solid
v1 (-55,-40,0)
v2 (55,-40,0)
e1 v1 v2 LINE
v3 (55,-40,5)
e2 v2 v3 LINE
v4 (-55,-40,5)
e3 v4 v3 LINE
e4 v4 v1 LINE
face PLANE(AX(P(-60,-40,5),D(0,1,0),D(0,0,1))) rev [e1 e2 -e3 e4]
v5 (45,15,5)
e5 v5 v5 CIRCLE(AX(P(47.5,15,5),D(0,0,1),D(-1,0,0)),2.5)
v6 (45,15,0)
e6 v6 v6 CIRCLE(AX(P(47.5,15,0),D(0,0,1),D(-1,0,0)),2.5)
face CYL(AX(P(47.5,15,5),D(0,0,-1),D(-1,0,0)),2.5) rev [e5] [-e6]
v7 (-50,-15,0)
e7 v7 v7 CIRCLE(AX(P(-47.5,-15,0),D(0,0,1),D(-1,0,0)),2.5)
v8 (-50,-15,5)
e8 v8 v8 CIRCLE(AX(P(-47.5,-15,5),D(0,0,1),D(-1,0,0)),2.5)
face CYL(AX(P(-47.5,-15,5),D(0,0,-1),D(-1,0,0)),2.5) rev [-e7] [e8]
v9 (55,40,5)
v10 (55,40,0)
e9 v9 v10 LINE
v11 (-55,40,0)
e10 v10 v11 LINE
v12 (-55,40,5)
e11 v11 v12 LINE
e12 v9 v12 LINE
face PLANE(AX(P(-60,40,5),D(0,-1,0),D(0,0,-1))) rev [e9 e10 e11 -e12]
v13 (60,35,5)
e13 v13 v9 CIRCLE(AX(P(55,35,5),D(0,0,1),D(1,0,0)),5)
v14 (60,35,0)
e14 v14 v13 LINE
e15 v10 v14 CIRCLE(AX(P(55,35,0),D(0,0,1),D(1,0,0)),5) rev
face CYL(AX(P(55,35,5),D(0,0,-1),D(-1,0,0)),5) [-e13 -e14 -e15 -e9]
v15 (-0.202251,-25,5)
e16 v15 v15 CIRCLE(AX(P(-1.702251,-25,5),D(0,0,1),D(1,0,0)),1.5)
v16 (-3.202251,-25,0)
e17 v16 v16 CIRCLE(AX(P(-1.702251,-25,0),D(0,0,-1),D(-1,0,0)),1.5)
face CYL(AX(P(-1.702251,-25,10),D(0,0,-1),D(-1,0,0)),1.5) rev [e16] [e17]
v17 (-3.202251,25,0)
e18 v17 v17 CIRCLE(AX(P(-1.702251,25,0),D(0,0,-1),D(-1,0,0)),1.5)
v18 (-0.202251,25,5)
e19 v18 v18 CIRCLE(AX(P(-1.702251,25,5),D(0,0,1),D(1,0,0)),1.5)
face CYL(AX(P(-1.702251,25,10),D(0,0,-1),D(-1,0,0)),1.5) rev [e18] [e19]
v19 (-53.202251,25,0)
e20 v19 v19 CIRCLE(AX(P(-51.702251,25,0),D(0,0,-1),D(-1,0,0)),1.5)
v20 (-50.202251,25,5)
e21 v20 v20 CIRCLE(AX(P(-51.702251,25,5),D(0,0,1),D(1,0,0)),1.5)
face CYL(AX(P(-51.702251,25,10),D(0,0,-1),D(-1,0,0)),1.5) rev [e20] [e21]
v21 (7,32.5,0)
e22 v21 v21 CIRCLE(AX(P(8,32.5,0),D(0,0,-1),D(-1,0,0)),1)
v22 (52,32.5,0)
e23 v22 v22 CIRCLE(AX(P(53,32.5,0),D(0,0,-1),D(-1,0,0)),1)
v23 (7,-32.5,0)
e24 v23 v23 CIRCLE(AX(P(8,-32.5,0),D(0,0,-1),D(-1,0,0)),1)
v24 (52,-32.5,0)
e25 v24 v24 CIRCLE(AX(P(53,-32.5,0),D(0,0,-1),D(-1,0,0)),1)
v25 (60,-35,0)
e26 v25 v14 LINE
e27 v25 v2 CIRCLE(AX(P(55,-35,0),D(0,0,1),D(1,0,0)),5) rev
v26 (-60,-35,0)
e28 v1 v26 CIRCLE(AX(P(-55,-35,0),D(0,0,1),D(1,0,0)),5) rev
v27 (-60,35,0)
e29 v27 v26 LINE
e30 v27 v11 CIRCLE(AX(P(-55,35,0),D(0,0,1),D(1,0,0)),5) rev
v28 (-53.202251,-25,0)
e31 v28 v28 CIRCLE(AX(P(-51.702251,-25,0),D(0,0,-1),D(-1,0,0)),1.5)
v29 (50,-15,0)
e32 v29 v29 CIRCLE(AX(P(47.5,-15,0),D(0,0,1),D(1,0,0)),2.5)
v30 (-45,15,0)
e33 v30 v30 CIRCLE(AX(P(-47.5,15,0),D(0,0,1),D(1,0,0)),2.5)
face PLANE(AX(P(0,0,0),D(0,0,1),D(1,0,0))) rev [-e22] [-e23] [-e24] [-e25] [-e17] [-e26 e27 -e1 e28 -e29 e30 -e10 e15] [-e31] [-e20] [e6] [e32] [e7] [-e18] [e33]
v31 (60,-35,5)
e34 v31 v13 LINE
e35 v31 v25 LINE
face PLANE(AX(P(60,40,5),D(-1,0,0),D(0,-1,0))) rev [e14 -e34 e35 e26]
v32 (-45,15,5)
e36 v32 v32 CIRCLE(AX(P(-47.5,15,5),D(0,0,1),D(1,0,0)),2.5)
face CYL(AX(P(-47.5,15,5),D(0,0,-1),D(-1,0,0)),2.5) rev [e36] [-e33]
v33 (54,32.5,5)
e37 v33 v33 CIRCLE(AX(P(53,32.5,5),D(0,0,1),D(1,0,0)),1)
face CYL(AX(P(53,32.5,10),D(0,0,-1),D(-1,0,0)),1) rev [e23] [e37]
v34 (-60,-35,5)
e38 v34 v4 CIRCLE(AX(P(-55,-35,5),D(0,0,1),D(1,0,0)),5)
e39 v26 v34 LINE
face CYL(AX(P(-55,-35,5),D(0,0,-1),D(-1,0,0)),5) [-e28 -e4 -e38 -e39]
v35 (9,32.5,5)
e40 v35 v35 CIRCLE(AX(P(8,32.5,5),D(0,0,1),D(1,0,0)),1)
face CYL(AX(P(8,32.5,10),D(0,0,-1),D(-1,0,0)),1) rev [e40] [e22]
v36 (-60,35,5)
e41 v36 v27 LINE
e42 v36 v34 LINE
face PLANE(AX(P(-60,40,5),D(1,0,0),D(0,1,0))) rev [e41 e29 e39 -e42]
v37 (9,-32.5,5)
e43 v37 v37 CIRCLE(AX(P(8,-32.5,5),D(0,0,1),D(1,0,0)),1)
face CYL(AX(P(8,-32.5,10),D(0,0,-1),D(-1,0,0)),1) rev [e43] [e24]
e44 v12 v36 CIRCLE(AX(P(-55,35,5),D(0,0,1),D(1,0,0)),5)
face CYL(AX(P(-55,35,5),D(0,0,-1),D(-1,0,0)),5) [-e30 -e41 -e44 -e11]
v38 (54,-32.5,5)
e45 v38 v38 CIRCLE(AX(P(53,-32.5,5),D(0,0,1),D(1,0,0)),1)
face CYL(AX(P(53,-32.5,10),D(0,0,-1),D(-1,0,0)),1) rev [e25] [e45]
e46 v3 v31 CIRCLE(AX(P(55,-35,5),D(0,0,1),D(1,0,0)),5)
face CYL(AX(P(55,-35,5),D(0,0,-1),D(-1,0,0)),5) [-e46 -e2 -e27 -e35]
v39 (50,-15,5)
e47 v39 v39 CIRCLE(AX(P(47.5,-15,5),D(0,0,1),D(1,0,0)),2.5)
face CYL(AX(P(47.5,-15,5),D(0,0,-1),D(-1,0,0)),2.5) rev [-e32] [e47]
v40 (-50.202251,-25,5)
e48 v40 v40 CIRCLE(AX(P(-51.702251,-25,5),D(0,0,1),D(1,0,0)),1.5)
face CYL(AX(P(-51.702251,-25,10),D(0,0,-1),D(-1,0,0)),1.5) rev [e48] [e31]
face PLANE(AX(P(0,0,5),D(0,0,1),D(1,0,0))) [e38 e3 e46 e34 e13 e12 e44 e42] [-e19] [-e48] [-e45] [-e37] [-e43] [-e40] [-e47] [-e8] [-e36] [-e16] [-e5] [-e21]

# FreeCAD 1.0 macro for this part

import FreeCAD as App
import Part
import Sketcher


def edges_at(feature, points):
    """Names of the edges that pass closest to the given points."""
    edges = feature.Shape.Edges
    near = lambda p: min(range(len(edges)), key=lambda i: edges[i].distToShape(Part.Vertex(*p))[0])
    return sorted({f"Edge{near(p) + 1}" for p in points})


def add_polygon(sketch, points):
    """Adds a closed chain of lines whose ends are joined by coincident constraints."""
    first, n = sketch.GeometryCount, len(points)
    for a, b in zip(points, points[1:] + points[:1]):
        sketch.addGeometry(Part.LineSegment(App.Vector(*a, 0), App.Vector(*b, 0)), False)
    for i in range(n):
        sketch.addConstraint(Sketcher.Constraint("Coincident", first + i, 2, first + (i + 1) % n, 1))

doc = App.newDocument("Part")
body = doc.addObject("PartDesign::Body", "Body")

# Sketch on XY plane
sketch1 = body.newObject("Sketcher::SketchObject", "Sketch")
sketch1.AttachmentSupport = (doc.getObject("XY_Plane"), [""])
sketch1.MapMode = "FlatFace"
add_polygon(sketch1, [(-60, 40), (-60, -40), (60, -40), (60, 40)])  # lines 0-3
sketch1.addGeometry(Part.Circle(App.Vector(-47.5, -15, 0), App.Vector(0, 0, 1), 2.5), False)  # 4
sketch1.addGeometry(Part.Circle(App.Vector(47.5, -15, 0), App.Vector(0, 0, 1), 2.5), False)  # 5
sketch1.addGeometry(Part.Circle(App.Vector(-47.5, 15, 0), App.Vector(0, 0, 1), 2.5), False)  # 6
sketch1.addGeometry(Part.Circle(App.Vector(47.5, 15, 0), App.Vector(0, 0, 1), 2.5), False)  # 7
sketch1.addConstraint([
    Sketcher.Constraint("Vertical", 0),
    Sketcher.Constraint("Horizontal", 1),
    Sketcher.Constraint("Vertical", 2),
    Sketcher.Constraint("Horizontal", 3),
    Sketcher.Constraint("Equal", 4, 5),
    Sketcher.Constraint("Equal", 5, 6),
    Sketcher.Constraint("Equal", 6, 7),
    Sketcher.Constraint("Symmetric", 5, 3, 6, 3, -1, 1),
    Sketcher.Constraint("Symmetric", 4, 3, 7, 3, -1, 1),
    Sketcher.Constraint("Symmetric", 0, 2, 2, 2, -1, 1),
    Sketcher.Constraint("Symmetric", 4, 3, 5, 3, -2),
    Sketcher.Constraint("Diameter", 4, 5.0),
    Sketcher.Constraint("DistanceX", 1, 1, 1, 2, 120.0),
    Sketcher.Constraint("DistanceY", 0, 2, 0, 1, 80.0),
    Sketcher.Constraint("DistanceY", 4, 3, -1, 1, 15.0),
    Sketcher.Constraint("DistanceX", 4, 3, 5, 3, 95.0),
])
pad1 = body.newObject("PartDesign::Pad", "Pad")
pad1.Profile = sketch1
pad1.Length = 5

# Sketch on XY plane
sketch2 = body.newObject("Sketcher::SketchObject", "Sketch001")
sketch2.AttachmentSupport = (doc.getObject("XY_Plane"), [""])
sketch2.MapMode = "FlatFace"
sketch2.addGeometry([
    Part.Circle(App.Vector(-51.7, -25, 0), App.Vector(0, 0, 1), 1.5),  # 0
    Part.Circle(App.Vector(-1.7, -25, 0), App.Vector(0, 0, 1), 1.5),  # 1
    Part.Circle(App.Vector(-1.7, 25, 0), App.Vector(0, 0, 1), 1.5),  # 2
    Part.Circle(App.Vector(-51.7, 25, 0), App.Vector(0, 0, 1), 1.5),  # 3
    Part.Circle(App.Vector(8, -32.5, 0), App.Vector(0, 0, 1), 1),  # 4
    Part.Circle(App.Vector(53, -32.5, 0), App.Vector(0, 0, 1), 1),  # 5
    Part.Circle(App.Vector(53, 32.5, 0), App.Vector(0, 0, 1), 1),  # 6
    Part.Circle(App.Vector(8, 32.5, 0), App.Vector(0, 0, 1), 1),  # 7
], False)
sketch2.addConstraint([
    Sketcher.Constraint("Equal", 0, 1),
    Sketcher.Constraint("Equal", 1, 2),
    Sketcher.Constraint("Equal", 2, 3),
    Sketcher.Constraint("Equal", 4, 5),
    Sketcher.Constraint("Equal", 5, 6),
    Sketcher.Constraint("Equal", 6, 7),
    Sketcher.Constraint("Symmetric", 1, 3, 2, 3, -1),
    Sketcher.Constraint("Symmetric", 0, 3, 3, 3, -1),
    Sketcher.Constraint("Symmetric", 5, 3, 6, 3, -1),
    Sketcher.Constraint("Symmetric", 4, 3, 7, 3, -1),
    Sketcher.Constraint("Horizontal", 0, 3, 1, 3),
    Sketcher.Constraint("Horizontal", 4, 3, 5, 3),
    Sketcher.Constraint("Diameter", 0, 3.0),
    Sketcher.Constraint("Diameter", 4, 2.0),
    Sketcher.Constraint("DistanceY", 0, 3, -1, 1, 25.0),
    Sketcher.Constraint("DistanceX", -1, 1, 4, 3, 8.0),
    Sketcher.Constraint("DistanceX", -1, 1, 5, 3, 53.0),
    Sketcher.Constraint("DistanceX", 0, 3, 1, 3, 50.0),
    Sketcher.Constraint("DistanceY", 5, 3, 6, 3, 65.0),
    Sketcher.Constraint("DistanceX", 0, 3, -1, 1, 51.702251),
])
pocket1 = body.newObject("PartDesign::Pocket", "Pocket")
pocket1.Profile = sketch2
pocket1.Length = 10
pocket1.Reversed = True
doc.recompute()

fillet = body.newObject("PartDesign::Fillet", "Fillet")
fillet.Base = (pocket1, edges_at(pocket1, [
    (60, -40, 2.5),
    (-60, -40, 2.5),
    (-60, 40, 2.5),
    (60, 40, 2.5),
]))
fillet.Radius = 5

doc.recompute()
